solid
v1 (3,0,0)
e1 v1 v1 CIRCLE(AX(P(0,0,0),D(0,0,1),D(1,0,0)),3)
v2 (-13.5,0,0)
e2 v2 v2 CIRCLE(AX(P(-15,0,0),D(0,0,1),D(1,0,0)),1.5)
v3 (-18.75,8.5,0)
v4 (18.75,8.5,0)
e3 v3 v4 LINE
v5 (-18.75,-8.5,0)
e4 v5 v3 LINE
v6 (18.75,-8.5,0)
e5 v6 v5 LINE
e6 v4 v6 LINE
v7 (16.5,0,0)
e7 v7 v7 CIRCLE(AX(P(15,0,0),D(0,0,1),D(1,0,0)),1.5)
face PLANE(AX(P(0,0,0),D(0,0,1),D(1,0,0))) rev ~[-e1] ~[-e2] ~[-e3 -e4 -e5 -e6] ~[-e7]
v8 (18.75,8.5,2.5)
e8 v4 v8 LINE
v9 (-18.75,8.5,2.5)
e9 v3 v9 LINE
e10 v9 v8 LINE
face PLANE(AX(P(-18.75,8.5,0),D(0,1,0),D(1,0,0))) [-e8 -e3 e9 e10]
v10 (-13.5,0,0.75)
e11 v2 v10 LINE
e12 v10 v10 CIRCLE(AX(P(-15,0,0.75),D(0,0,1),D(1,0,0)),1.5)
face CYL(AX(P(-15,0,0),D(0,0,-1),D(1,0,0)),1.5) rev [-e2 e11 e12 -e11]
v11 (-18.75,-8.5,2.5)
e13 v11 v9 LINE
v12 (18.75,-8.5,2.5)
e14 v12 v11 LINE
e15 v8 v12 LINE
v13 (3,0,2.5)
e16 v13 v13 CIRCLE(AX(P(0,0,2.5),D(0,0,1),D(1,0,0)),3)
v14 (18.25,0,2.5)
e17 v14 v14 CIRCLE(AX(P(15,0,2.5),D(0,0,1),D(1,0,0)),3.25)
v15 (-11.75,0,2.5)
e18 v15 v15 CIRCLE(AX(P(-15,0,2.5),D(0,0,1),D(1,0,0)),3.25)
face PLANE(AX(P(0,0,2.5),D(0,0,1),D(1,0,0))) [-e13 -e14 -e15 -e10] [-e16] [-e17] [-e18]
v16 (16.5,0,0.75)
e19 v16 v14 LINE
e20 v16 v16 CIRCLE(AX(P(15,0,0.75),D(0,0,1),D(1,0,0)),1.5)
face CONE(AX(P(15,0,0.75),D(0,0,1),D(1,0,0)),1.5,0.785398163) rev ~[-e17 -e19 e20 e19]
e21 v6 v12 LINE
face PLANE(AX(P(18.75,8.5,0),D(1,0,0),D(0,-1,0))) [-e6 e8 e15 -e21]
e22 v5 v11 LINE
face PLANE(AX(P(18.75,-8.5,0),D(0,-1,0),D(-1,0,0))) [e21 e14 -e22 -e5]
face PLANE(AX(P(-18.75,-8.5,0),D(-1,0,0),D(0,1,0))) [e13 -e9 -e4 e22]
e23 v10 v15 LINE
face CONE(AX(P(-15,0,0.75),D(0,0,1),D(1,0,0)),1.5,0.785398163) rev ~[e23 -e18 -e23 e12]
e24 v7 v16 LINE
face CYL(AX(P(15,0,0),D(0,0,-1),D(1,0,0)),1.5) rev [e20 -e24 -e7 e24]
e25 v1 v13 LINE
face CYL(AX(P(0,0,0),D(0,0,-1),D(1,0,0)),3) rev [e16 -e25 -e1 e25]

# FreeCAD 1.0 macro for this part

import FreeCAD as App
import Part
import Sketcher
from FreeCAD import Vector
Q = App.Units.Quantity


def edges_at(feature, points):
    """Names of the edges that pass closest to the given points."""
    edges = feature.Shape.Edges
    near = lambda p: min(range(len(edges)), key=lambda i: edges[i].distToShape(Part.Vertex(*p))[0])
    return sorted({f"Edge{near(p) + 1}" for p in points})

doc = App.newDocument("Part")
body = doc.addObject("PartDesign::Body", "Body")

# Sketch on XY plane
sketch1 = doc.addObject("Sketcher::SketchObject", "Sketch")
body.addObject(sketch1)
sketch1.AttachmentSupport = (doc.XY_Plane, [""])
sketch1.MapMode = "FlatFace"
sketch1.addGeometry(Part.LineSegment(Vector(18.8, 8.5, 0), Vector(-18.8, 8.5, 0)), False)
sketch1.addGeometry(Part.LineSegment(Vector(-18.8, 8.5, 0), Vector(-18.8, -8.5, 0)), False)
sketch1.addGeometry(Part.LineSegment(Vector(-18.8, -8.5, 0), Vector(18.8, -8.5, 0)), False)
sketch1.addGeometry(Part.LineSegment(Vector(18.8, -8.5, 0), Vector(18.8, 8.5, 0)), False)
sketch1.addGeometry(Part.Circle(Vector(-15, 0, 0), Vector(0, 0, 1), 1.5), False)
sketch1.addGeometry(Part.Circle(Vector(0, 0, 0), Vector(0, 0, 1), 3), False)
sketch1.addGeometry(Part.Circle(Vector(15, 0, 0), Vector(0, 0, 1), 1.5), False)
sketch1.addConstraint(Sketcher.Constraint("Coincident", 0, 2, 1, 1))
sketch1.addConstraint(Sketcher.Constraint("Coincident", 1, 2, 2, 1))
sketch1.addConstraint(Sketcher.Constraint("Coincident", 2, 2, 3, 1))
sketch1.addConstraint(Sketcher.Constraint("Coincident", 3, 2, 0, 1))
sketch1.addConstraint(Sketcher.Constraint("Horizontal", 0))
sketch1.addConstraint(Sketcher.Constraint("Vertical", 1))
sketch1.addConstraint(Sketcher.Constraint("Horizontal", 2))
sketch1.addConstraint(Sketcher.Constraint("Vertical", 3))
sketch1.addConstraint(Sketcher.Constraint("Coincident", 5, 3, -1, 1))
sketch1.addConstraint(Sketcher.Constraint("Equal", 4, 6))
sketch1.addConstraint(Sketcher.Constraint("Symmetric", 4, 3, 6, 3, -1, 1))
sketch1.addConstraint(Sketcher.Constraint("Symmetric", 0, 2, 2, 2, -1, 1))
sketch1.addConstraint(Sketcher.Constraint("PointOnObject", 4, 3, -1))
sketch1.addConstraint(Sketcher.Constraint("Diameter", 4, Q("3 mm")))
sketch1.addConstraint(Sketcher.Constraint("Diameter", 5, Q("6 mm")))
sketch1.addConstraint(Sketcher.Constraint("DistanceY", 1, 2, 1, 1, Q("17 mm")))
sketch1.addConstraint(Sketcher.Constraint("DistanceX", 0, 2, 0, 1, Q("37.5 mm")))
sketch1.addConstraint(Sketcher.Constraint("DistanceX", 4, 3, -1, 1, Q("15 mm")))
pad1 = doc.addObject("PartDesign::Pad", "Pad")
body.addObject(pad1)
pad1.Profile = sketch1
pad1.Length = 2.5
doc.recompute()

chamfer = doc.addObject("PartDesign::Chamfer", "Chamfer")
body.addObject(chamfer)
chamfer.Base = (pad1, edges_at(pad1, [(-16.5, 0, 2.5), (13.5, 0, 2.5)]))
chamfer.Size = 1.75

doc.recompute()
